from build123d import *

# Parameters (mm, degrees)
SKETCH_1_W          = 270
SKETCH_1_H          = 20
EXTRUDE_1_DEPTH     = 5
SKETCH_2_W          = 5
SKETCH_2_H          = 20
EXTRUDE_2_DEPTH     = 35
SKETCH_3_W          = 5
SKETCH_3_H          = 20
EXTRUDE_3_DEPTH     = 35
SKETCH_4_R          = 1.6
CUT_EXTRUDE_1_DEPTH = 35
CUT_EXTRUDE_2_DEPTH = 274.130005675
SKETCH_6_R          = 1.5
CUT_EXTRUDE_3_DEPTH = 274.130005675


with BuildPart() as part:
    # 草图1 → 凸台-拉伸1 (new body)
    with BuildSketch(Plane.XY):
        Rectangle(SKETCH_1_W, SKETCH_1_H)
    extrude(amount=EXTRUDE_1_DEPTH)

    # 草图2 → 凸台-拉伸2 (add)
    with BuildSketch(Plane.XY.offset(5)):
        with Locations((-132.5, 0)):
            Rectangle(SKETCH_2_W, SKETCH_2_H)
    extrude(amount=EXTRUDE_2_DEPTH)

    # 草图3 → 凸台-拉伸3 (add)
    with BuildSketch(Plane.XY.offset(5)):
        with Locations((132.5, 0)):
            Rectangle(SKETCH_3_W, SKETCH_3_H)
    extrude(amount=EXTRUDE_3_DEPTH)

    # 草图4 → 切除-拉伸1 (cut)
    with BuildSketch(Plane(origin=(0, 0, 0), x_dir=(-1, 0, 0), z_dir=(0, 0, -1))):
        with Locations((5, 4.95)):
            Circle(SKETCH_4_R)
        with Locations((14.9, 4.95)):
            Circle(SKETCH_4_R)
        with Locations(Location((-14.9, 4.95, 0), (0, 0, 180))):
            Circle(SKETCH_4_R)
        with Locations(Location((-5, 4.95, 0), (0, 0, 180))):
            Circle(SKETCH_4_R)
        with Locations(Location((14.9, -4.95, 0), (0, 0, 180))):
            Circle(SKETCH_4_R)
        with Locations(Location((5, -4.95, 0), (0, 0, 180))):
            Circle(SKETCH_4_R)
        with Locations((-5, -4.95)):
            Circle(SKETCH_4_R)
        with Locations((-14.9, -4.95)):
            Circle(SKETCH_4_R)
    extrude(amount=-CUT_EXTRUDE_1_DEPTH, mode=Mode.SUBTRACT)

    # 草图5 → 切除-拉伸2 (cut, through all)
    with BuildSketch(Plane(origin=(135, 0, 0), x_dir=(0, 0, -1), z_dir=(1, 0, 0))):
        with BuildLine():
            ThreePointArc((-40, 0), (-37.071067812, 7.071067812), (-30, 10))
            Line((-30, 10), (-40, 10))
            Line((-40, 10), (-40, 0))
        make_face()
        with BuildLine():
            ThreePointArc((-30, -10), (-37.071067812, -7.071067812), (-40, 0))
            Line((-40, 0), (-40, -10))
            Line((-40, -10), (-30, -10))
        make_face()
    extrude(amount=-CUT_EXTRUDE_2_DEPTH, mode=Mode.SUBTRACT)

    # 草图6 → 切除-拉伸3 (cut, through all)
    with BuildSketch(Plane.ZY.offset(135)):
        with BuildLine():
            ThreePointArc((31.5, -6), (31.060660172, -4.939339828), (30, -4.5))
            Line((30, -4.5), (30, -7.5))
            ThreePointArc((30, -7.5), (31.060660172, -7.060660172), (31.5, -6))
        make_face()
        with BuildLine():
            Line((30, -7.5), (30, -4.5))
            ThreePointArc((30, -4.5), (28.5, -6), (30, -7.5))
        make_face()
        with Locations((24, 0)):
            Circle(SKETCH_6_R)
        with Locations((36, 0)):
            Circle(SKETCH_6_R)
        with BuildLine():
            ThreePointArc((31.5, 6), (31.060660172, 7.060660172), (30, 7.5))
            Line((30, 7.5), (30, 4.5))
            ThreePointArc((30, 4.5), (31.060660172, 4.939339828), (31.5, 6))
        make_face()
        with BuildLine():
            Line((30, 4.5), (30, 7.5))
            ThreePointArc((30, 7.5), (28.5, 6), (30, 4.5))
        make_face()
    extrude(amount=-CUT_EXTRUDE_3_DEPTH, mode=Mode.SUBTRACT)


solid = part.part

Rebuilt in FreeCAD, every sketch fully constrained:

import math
import FreeCAD as App
import Part
import Sketcher

doc = App.newDocument("Part")
body = doc.addObject("PartDesign::Body", "Body")

# Sketch on XY plane
sketch1 = body.newObject("Sketcher::SketchObject", "Sketch")
sketch1.AttachmentSupport = (doc.getObject("XY_Plane"), [""])
sketch1.MapMode = "FlatFace"
sketch1.addGeometry([
    Part.LineSegment(App.Vector(-135, 10, 0), App.Vector(-135, -10, 0)),
    Part.LineSegment(App.Vector(-135, -10, 0), App.Vector(135, -10, 0)),
    Part.LineSegment(App.Vector(135, -10, 0), App.Vector(135, 10, 0)),
    Part.LineSegment(App.Vector(135, 10, 0), App.Vector(-135, 10, 0)),
], False)
sketch1.addConstraint([
    Sketcher.Constraint("Coincident", 0, 2, 1, 1),
    Sketcher.Constraint("Coincident", 1, 2, 2, 1),
    Sketcher.Constraint("Coincident", 2, 2, 3, 1),
    Sketcher.Constraint("Coincident", 3, 2, 0, 1),
    Sketcher.Constraint("Vertical", 0),
    Sketcher.Constraint("Horizontal", 1),
    Sketcher.Constraint("Vertical", 2),
    Sketcher.Constraint("Horizontal", 3),
    Sketcher.Constraint("Symmetric", 0, 2, 2, 2, -1, 1),
    Sketcher.Constraint("DistanceX", 1, 1, 1, 2, 270.0),
    Sketcher.Constraint("DistanceY", 0, 2, 0, 1, 20.0),
])
pad1 = body.newObject("PartDesign::Pad", "Pad")
pad1.Profile = sketch1
pad1.Length = 5

# Sketch on XY plane
sketch2 = body.newObject("Sketcher::SketchObject", "Sketch001")
sketch2.AttachmentSupport = (doc.getObject("XY_Plane"), [""])
sketch2.MapMode = "FlatFace"
sketch2.AttachmentOffset = App.Placement(App.Vector(0, 0, 5), App.Rotation())
sketch2.addGeometry([
    Part.LineSegment(App.Vector(-135, 10, 0), App.Vector(-135, -10, 0)),
    Part.LineSegment(App.Vector(-135, -10, 0), App.Vector(-130, -10, 0)),
    Part.LineSegment(App.Vector(-130, -10, 0), App.Vector(-130, 10, 0)),
    Part.LineSegment(App.Vector(-130, 10, 0), App.Vector(-135, 10, 0)),
], False)
sketch2.addConstraint([
    Sketcher.Constraint("Coincident", 0, 2, 1, 1),
    Sketcher.Constraint("Coincident", 1, 2, 2, 1),
    Sketcher.Constraint("Coincident", 2, 2, 3, 1),
    Sketcher.Constraint("Coincident", 3, 2, 0, 1),
    Sketcher.Constraint("Vertical", 0),
    Sketcher.Constraint("Horizontal", 1),
    Sketcher.Constraint("Vertical", 2),
    Sketcher.Constraint("Horizontal", 3),
    Sketcher.Constraint("DistanceX", 1, 1, 1, 2, 5.0),
    Sketcher.Constraint("DistanceY", 0, 2, 0, 1, 20.0),
    Sketcher.Constraint("DistanceX", 0, 2, -1, 1, 135.0),
    Sketcher.Constraint("DistanceY", 0, 2, -1, 1, 10.0),
])
pad2 = body.newObject("PartDesign::Pad", "Pad001")
pad2.Profile = sketch2
pad2.Length = 35

# Sketch on XY plane
sketch3 = body.newObject("Sketcher::SketchObject", "Sketch002")
sketch3.AttachmentSupport = (doc.getObject("XY_Plane"), [""])
sketch3.MapMode = "FlatFace"
sketch3.AttachmentOffset = App.Placement(App.Vector(0, 0, 5), App.Rotation())
sketch3.addGeometry([
    Part.LineSegment(App.Vector(130, 10, 0), App.Vector(130, -10, 0)),
    Part.LineSegment(App.Vector(130, -10, 0), App.Vector(135, -10, 0)),
    Part.LineSegment(App.Vector(135, -10, 0), App.Vector(135, 10, 0)),
    Part.LineSegment(App.Vector(135, 10, 0), App.Vector(130, 10, 0)),
], False)
sketch3.addConstraint([
    Sketcher.Constraint("Coincident", 0, 2, 1, 1),
    Sketcher.Constraint("Coincident", 1, 2, 2, 1),
    Sketcher.Constraint("Coincident", 2, 2, 3, 1),
    Sketcher.Constraint("Coincident", 3, 2, 0, 1),
    Sketcher.Constraint("Vertical", 0),
    Sketcher.Constraint("Horizontal", 1),
    Sketcher.Constraint("Vertical", 2),
    Sketcher.Constraint("Horizontal", 3),
    Sketcher.Constraint("DistanceX", 1, 1, 1, 2, 5.0),
    Sketcher.Constraint("DistanceY", 0, 2, 0, 1, 20.0),
    Sketcher.Constraint("DistanceX", -1, 1, 0, 2, 130.0),
    Sketcher.Constraint("DistanceY", 0, 2, -1, 1, 10.0),
])
pad3 = body.newObject("PartDesign::Pad", "Pad002")
pad3.Profile = sketch3
pad3.Length = 35

# Sketch on XY plane
sketch4 = body.newObject("Sketcher::SketchObject", "Sketch003")
sketch4.AttachmentSupport = (doc.getObject("XY_Plane"), [""])
sketch4.MapMode = "FlatFace"
sketch4.addGeometry([
    Part.Circle(App.Vector(-5, 5, 0), App.Vector(0, 0, 1), 1.6),  # 0
    Part.Circle(App.Vector(-14.9, 5, 0), App.Vector(0, 0, 1), 1.6),  # 1
    Part.Circle(App.Vector(14.9, 5, 0), App.Vector(0, 0, 1), 1.6),  # 2
    Part.Circle(App.Vector(5, 5, 0), App.Vector(0, 0, 1), 1.6),  # 3
    Part.Circle(App.Vector(-14.9, -5, 0), App.Vector(0, 0, 1), 1.6),  # 4
    Part.Circle(App.Vector(-5, -5, 0), App.Vector(0, 0, 1), 1.6),  # 5
    Part.Circle(App.Vector(5, -5, 0), App.Vector(0, 0, 1), 1.6),  # 6
    Part.Circle(App.Vector(14.9, -5, 0), App.Vector(0, 0, 1), 1.6),  # 7
], False)
sketch4.addConstraint([
    Sketcher.Constraint("Equal", 0, 1),
    Sketcher.Constraint("Equal", 1, 2),
    Sketcher.Constraint("Equal", 2, 3),
    Sketcher.Constraint("Equal", 3, 4),
    Sketcher.Constraint("Equal", 4, 5),
    Sketcher.Constraint("Equal", 5, 6),
    Sketcher.Constraint("Equal", 6, 7),
    Sketcher.Constraint("Symmetric", 2, 3, 4, 3, -1, 1),
    Sketcher.Constraint("Symmetric", 3, 3, 5, 3, -1, 1),
    Sketcher.Constraint("Symmetric", 0, 3, 6, 3, -1, 1),
    Sketcher.Constraint("Symmetric", 1, 3, 7, 3, -1, 1),
    Sketcher.Constraint("Symmetric", 1, 3, 2, 3, -2),
    Sketcher.Constraint("Symmetric", 0, 3, 3, 3, -2),
    Sketcher.Constraint("Horizontal", 0, 3, 1, 3),
    Sketcher.Constraint("Diameter", 0, 3.2),
    Sketcher.Constraint("DistanceX", 0, 3, -1, 1, 5.0),
    Sketcher.Constraint("DistanceX", 1, 3, -1, 1, 14.9),
    Sketcher.Constraint("DistanceY", 4, 3, 1, 3, 9.9),
])
pocket1 = body.newObject("PartDesign::Pocket", "Pocket")
pocket1.Profile = sketch4
pocket1.Length = 35
pocket1.Reversed = True

# Sketch on YZ plane
sketch5 = body.newObject("Sketcher::SketchObject", "Sketch004")
sketch5.AttachmentSupport = (doc.getObject("YZ_Plane"), [""])
sketch5.MapMode = "FlatFace"
sketch5.AttachmentOffset = App.Placement(App.Vector(0, 0, 135), App.Rotation())
sketch5.addGeometry([
    Part.ArcOfCircle(Part.Circle(App.Vector(0, 30, 0), App.Vector(0, 0, 1), 10), math.radians(0), math.radians(90)),  # 0
    Part.LineSegment(App.Vector(10, 30, 0), App.Vector(10, 40, 0)),  # 1
    Part.LineSegment(App.Vector(10, 40, 0), App.Vector(0, 40, 0)),  # 2
    Part.ArcOfCircle(Part.Circle(App.Vector(0, 30, 0), App.Vector(0, 0, 1), 10), math.radians(90), math.radians(180)),  # 3
    Part.LineSegment(App.Vector(0, 40, 0), App.Vector(-10, 40, 0)),  # 4
    Part.LineSegment(App.Vector(-10, 40, 0), App.Vector(-10, 30, 0)),  # 5
], False)
sketch5.addConstraint([
    Sketcher.Constraint("Tangent", 0, 1, 1, 1),
    Sketcher.Constraint("Coincident", 1, 2, 2, 1),
    Sketcher.Constraint("Tangent", 2, 2, 0, 2),
    Sketcher.Constraint("Tangent", 3, 1, 4, 1),
    Sketcher.Constraint("Coincident", 4, 2, 5, 1),
    Sketcher.Constraint("Tangent", 5, 2, 3, 2),
    Sketcher.Constraint("Vertical", 1),
    Sketcher.Constraint("Horizontal", 2),
    Sketcher.Constraint("Horizontal", 4),
    Sketcher.Constraint("Vertical", 5),
    Sketcher.Constraint("Coincident", 3, 3, 0, 3),
    Sketcher.Constraint("Equal", 0, 3),
    Sketcher.Constraint("PointOnObject", 0, 3, -2),
    Sketcher.Constraint("Radius", 0, 10.0),
    Sketcher.Constraint("DistanceY", -1, 1, 0, 3, 30.0),
])
pocket2 = body.newObject("PartDesign::Pocket", "Pocket001")
pocket2.Profile = sketch5
pocket2.Type = "ThroughAll"

# Sketch on YZ plane
sketch6 = body.newObject("Sketcher::SketchObject", "Sketch005")
sketch6.AttachmentSupport = (doc.getObject("YZ_Plane"), [""])
sketch6.MapMode = "FlatFace"
sketch6.AttachmentOffset = App.Placement(App.Vector(0, 0, -135), App.Rotation())
sketch6.addGeometry([
    Part.ArcOfCircle(Part.Circle(App.Vector(-6, 30, 0), App.Vector(0, 0, 1), 1.5), math.radians(0), math.radians(90)),  # 0
    Part.ArcOfCircle(Part.Circle(App.Vector(-6, 30, 0), App.Vector(0, 0, 1), 1.5), math.radians(180), math.radians(360)),  # 1
    Part.ArcOfCircle(Part.Circle(App.Vector(-6, 30, 0), App.Vector(0, 0, 1), 1.5), math.radians(90), math.radians(180)),  # 2
    Part.Circle(App.Vector(0, 24, 0), App.Vector(0, 0, 1), 1.5),  # 3
    Part.Circle(App.Vector(0, 36, 0), App.Vector(0, 0, 1), 1.5),  # 4
    Part.ArcOfCircle(Part.Circle(App.Vector(6, 30, 0), App.Vector(0, 0, 1), 1.5), math.radians(0), math.radians(90)),  # 5
    Part.ArcOfCircle(Part.Circle(App.Vector(6, 30, 0), App.Vector(0, 0, 1), 1.5), math.radians(180), math.radians(360)),  # 6
    Part.ArcOfCircle(Part.Circle(App.Vector(6, 30, 0), App.Vector(0, 0, 1), 1.5), math.radians(90), math.radians(180)),  # 7
], False)
sketch6.addConstraint([
    Sketcher.Constraint("Tangent", 0, 1, 1, 2),
    Sketcher.Constraint("Tangent", 1, 1, 2, 2),
    Sketcher.Constraint("Tangent", 2, 1, 0, 2),
    Sketcher.Constraint("Tangent", 5, 1, 6, 2),
    Sketcher.Constraint("Tangent", 6, 1, 7, 2),
    Sketcher.Constraint("Tangent", 7, 1, 5, 2),
    Sketcher.Constraint("Equal", 2, 3),
    Sketcher.Constraint("Equal", 3, 4),
    Sketcher.Constraint("Equal", 4, 5),
    Sketcher.Constraint("Symmetric", 0, 3, 5, 3, -2),
    Sketcher.Constraint("PointOnObject", 3, 3, -2),
    Sketcher.Constraint("PointOnObject", 4, 3, -2),
    Sketcher.Constraint("Horizontal", 7, 3, 0, 1),
    Sketcher.Constraint("Horizontal", 0, 1, 1, 1),
    Sketcher.Constraint("Horizontal", 1, 1, 5, 1),
    Sketcher.Constraint("Horizontal", 5, 1, 6, 1),
    Sketcher.Constraint("Vertical", 1, 3, 2, 1),
    Sketcher.Constraint("Vertical", 6, 3, 7, 1),
    Sketcher.Constraint("Diameter", 3, 3.0),
    Sketcher.Constraint("DistanceX", 0, 3, -1, 1, 6.0),
    Sketcher.Constraint("DistanceY", -1, 1, 0, 3, 30.0),
    Sketcher.Constraint("DistanceY", -1, 1, 3, 3, 24.0),
    Sketcher.Constraint("DistanceY", -1, 1, 4, 3, 36.0),
])
pocket3 = body.newObject("PartDesign::Pocket", "Pocket002")
pocket3.Profile = sketch6
pocket3.Type = "ThroughAll"
pocket3.Reversed = True

doc.recompute()
